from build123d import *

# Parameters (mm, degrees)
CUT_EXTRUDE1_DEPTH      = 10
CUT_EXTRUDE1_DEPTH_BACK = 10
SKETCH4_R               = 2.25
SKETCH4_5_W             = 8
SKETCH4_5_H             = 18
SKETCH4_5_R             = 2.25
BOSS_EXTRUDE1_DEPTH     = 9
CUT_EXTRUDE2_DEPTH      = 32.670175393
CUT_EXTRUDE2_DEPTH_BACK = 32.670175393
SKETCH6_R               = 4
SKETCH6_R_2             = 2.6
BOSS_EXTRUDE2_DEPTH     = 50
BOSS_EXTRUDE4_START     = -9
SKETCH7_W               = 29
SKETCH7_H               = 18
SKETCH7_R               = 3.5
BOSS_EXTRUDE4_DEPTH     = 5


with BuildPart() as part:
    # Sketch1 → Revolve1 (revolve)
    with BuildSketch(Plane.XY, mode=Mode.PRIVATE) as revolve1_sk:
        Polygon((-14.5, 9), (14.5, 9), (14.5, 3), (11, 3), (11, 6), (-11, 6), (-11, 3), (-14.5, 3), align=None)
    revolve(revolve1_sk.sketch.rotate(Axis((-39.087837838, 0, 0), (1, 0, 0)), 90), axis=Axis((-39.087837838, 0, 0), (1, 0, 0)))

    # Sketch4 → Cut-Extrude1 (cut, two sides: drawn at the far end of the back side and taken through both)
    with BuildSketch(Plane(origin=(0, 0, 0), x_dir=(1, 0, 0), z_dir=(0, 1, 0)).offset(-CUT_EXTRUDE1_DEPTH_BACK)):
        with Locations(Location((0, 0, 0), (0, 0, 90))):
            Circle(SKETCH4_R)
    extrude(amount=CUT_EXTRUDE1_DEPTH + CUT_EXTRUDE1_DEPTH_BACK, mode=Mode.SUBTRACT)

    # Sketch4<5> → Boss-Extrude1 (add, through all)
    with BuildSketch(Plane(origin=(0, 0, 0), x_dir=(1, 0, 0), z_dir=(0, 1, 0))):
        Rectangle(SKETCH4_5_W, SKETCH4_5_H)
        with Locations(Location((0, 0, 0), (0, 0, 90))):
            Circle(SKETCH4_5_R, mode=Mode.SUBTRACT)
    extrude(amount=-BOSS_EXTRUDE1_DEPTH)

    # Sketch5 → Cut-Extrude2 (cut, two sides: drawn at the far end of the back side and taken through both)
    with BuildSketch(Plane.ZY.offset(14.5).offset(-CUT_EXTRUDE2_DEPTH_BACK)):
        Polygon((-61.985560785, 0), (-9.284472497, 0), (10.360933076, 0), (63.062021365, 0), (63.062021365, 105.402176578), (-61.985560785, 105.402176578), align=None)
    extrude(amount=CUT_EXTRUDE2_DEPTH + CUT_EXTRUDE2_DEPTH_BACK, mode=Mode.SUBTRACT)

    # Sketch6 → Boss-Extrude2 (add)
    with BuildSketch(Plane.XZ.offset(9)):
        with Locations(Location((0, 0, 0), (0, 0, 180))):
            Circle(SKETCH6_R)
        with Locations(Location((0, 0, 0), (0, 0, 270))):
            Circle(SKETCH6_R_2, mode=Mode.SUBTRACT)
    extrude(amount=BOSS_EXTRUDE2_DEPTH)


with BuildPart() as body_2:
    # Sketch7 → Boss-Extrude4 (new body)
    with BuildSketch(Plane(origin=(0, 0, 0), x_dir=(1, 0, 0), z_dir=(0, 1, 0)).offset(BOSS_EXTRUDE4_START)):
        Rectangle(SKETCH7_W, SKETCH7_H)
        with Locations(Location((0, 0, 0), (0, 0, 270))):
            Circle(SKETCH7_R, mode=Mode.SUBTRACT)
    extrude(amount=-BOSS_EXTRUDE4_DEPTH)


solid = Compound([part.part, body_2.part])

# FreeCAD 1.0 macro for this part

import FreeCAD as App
import Part
import Sketcher

V = App.Vector
Q = App.Units.Quantity


def add_polygon(sketch, points):
    """Adds a closed chain of lines whose ends are joined by coincident constraints."""
    first, n = sketch.GeometryCount, len(points)
    for a, b in zip(points, points[1:] + points[:1]):
        sketch.addGeometry(Part.LineSegment(App.Vector(*a, 0), App.Vector(*b, 0)), False)
    for i in range(n):
        sketch.addConstraint(Sketcher.Constraint("Coincident", first + i, 2, first + (i + 1) % n, 1))

doc = App.newDocument("Part")
body = doc.addObject("PartDesign::Body", "Body")

sketch1 = doc.addObject("Sketcher::SketchObject", "Sketch")
body.addObject(sketch1)
sketch1.AttachmentSupport = (doc.XY_Plane, [""])
sketch1.MapMode = "FlatFace"
add_polygon(sketch1, [(14.5, 9), (-14.5, 9), (-14.5, 3), (-11, 3), (-11, 6), (11, 6), (11, 3), (14.5, 3)])
sketch1.addConstraint([
    Sketcher.Constraint("Horizontal", 0),
    Sketcher.Constraint("Vertical", 1),
    Sketcher.Constraint("Horizontal", 2),
    Sketcher.Constraint("Vertical", 3),
    Sketcher.Constraint("Horizontal", 4),
    Sketcher.Constraint("Vertical", 5),
    Sketcher.Constraint("Horizontal", 6),
    Sketcher.Constraint("Vertical", 7),
    Sketcher.Constraint("Symmetric", 2, 2, 5, 2, -2),
    Sketcher.Constraint("Equal", 2, 6),
    Sketcher.Constraint("DistanceX", 0, 2, 0, 1, Q("29 mm")),
    Sketcher.Constraint("DistanceX", 4, 1, 4, 2, Q("22 mm")),
    Sketcher.Constraint("DistanceY", 1, 2, 1, 1, Q("6 mm")),
    Sketcher.Constraint("DistanceY", 3, 1, 3, 2, Q("3 mm")),
    Sketcher.Constraint("DistanceY", -1, 1, 0, 2, Q("9 mm")),
])
revolution = doc.addObject("PartDesign::Revolution", "Revolution")
body.addObject(revolution)
revolution.Profile = sketch1
revolution.ReferenceAxis = (sketch1, ["H_Axis"])
revolution.Angle = 360

sketch2 = doc.addObject("Sketcher::SketchObject", "Sketch001")
body.addObject(sketch2)
sketch2.AttachmentSupport = (doc.XZ_Plane, [""])
sketch2.MapMode = "FlatFace"
sketch2.addGeometry(Part.Circle(V(0, 0, 0), V(0, 0, 1), 2.2), False)
sketch2.addConstraint([
    Sketcher.Constraint("Coincident", 0, 3, -1, 1),
    Sketcher.Constraint("Diameter", 0, Q("4.5 mm")),
])
pocket1 = doc.addObject("PartDesign::Pocket", "Pocket")
body.addObject(pocket1)
pocket1.Profile = sketch2
pocket1.Type = "ThroughAll"
pocket1.Midplane = True

sketch3 = doc.addObject("Sketcher::SketchObject", "Sketch002")
body.addObject(sketch3)
sketch3.AttachmentSupport = (doc.XZ_Plane, [""])
sketch3.MapMode = "FlatFace"
add_polygon(sketch3, [(-4, -9), (-4, 9), (4, 9), (4, -9)])
sketch3.addGeometry(Part.Circle(V(0, 0, 0), V(0, 0, 1), 2.2), False)
sketch3.addConstraint([
    Sketcher.Constraint("Vertical", 0),
    Sketcher.Constraint("Horizontal", 1),
    Sketcher.Constraint("Vertical", 2),
    Sketcher.Constraint("Horizontal", 3),
    Sketcher.Constraint("Coincident", 4, 3, -1, 1),
    Sketcher.Constraint("Symmetric", 0, 2, 2, 2, -1, 1),
    Sketcher.Constraint("Diameter", 4, Q("4.5 mm")),
    Sketcher.Constraint("DistanceX", 1, 1, 1, 2, Q("8 mm")),
    Sketcher.Constraint("DistanceY", 0, 1, 0, 2, Q("18 mm")),
])
pad1 = doc.addObject("PartDesign::Pad", "Pad")
body.addObject(pad1)
pad1.Profile = sketch3
pad1.Length = 9

sketch4 = doc.addObject("Sketcher::SketchObject", "Sketch003")
body.addObject(sketch4)
sketch4.AttachmentSupport = (doc.YZ_Plane, [""])
sketch4.MapMode = "FlatFace"
sketch4.AttachmentOffset = App.Placement(V(0, 0, -14.5), App.Rotation())
add_polygon(sketch4, [(0, -62), (0, 63), (105, 63), (105, -62)])
sketch4.addConstraint([
    Sketcher.Constraint("Vertical", 0),
    Sketcher.Constraint("Horizontal", 1),
    Sketcher.Constraint("Vertical", 2),
    Sketcher.Constraint("Horizontal", 3),
    Sketcher.Constraint("PointOnObject", 0, 2, -2),
    Sketcher.Constraint("DistanceX", 1, 1, 1, 2, Q("105.402177 mm")),
    Sketcher.Constraint("DistanceY", 0, 1, 0, 2, Q("125.047582 mm")),
    Sketcher.Constraint("DistanceY", -1, 1, 0, 2, Q("63.062021 mm")),
])
pocket2 = doc.addObject("PartDesign::Pocket", "Pocket001")
body.addObject(pocket2)
pocket2.Profile = sketch4
pocket2.Type = "ThroughAll"
pocket2.Midplane = True

sketch5 = doc.addObject("Sketcher::SketchObject", "Sketch004")
body.addObject(sketch5)
sketch5.AttachmentSupport = (doc.XZ_Plane, [""])
sketch5.MapMode = "FlatFace"
sketch5.AttachmentOffset = App.Placement(V(0, 0, 9), App.Rotation())
sketch5.addGeometry([
    Part.Circle(V(0, 0, 0), V(0, 0, 1), 4),
    Part.Circle(V(0, 0, 0), V(0, 0, 1), 2.6),
], False)
sketch5.addConstraint([
    Sketcher.Constraint("Coincident", 0, 3, -1, 1),
    Sketcher.Constraint("Coincident", 1, 3, -1, 1),
    Sketcher.Constraint("Diameter", 0, Q("8 mm")),
    Sketcher.Constraint("Diameter", 1, Q("5.2 mm")),
])
pad2 = doc.addObject("PartDesign::Pad", "Pad001")
body.addObject(pad2)
pad2.Profile = sketch5
pad2.Length = 50
body2 = doc.addObject("PartDesign::Body", "Body001")

sketch6 = doc.addObject("Sketcher::SketchObject", "Sketch005")
body2.addObject(sketch6)
sketch6.AttachmentSupport = (doc.getObject("XZ_Plane001"), [""])
sketch6.MapMode = "FlatFace"
sketch6.AttachmentOffset = App.Placement(V(0, 0, 9), App.Rotation())
add_polygon(sketch6, [(-14.5, -9), (-14.5, 9), (14.5, 9), (14.5, -9)])
sketch6.addGeometry(Part.Circle(V(0, 0, 0), V(0, 0, 1), 3.5), False)
sketch6.addConstraint([
    Sketcher.Constraint("Vertical", 0),
    Sketcher.Constraint("Horizontal", 1),
    Sketcher.Constraint("Vertical", 2),
    Sketcher.Constraint("Horizontal", 3),
    Sketcher.Constraint("Coincident", 4, 3, -1, 1),
    Sketcher.Constraint("Symmetric", 0, 2, 2, 2, -1, 1),
    Sketcher.Constraint("Diameter", 4, Q("7 mm")),
    Sketcher.Constraint("DistanceX", 1, 1, 1, 2, Q("29 mm")),
    Sketcher.Constraint("DistanceY", 0, 1, 0, 2, Q("18 mm")),
])
pad3 = doc.addObject("PartDesign::Pad", "Pad002")
body2.addObject(pad3)
pad3.Profile = sketch6
pad3.Length = 5

doc.recompute()
